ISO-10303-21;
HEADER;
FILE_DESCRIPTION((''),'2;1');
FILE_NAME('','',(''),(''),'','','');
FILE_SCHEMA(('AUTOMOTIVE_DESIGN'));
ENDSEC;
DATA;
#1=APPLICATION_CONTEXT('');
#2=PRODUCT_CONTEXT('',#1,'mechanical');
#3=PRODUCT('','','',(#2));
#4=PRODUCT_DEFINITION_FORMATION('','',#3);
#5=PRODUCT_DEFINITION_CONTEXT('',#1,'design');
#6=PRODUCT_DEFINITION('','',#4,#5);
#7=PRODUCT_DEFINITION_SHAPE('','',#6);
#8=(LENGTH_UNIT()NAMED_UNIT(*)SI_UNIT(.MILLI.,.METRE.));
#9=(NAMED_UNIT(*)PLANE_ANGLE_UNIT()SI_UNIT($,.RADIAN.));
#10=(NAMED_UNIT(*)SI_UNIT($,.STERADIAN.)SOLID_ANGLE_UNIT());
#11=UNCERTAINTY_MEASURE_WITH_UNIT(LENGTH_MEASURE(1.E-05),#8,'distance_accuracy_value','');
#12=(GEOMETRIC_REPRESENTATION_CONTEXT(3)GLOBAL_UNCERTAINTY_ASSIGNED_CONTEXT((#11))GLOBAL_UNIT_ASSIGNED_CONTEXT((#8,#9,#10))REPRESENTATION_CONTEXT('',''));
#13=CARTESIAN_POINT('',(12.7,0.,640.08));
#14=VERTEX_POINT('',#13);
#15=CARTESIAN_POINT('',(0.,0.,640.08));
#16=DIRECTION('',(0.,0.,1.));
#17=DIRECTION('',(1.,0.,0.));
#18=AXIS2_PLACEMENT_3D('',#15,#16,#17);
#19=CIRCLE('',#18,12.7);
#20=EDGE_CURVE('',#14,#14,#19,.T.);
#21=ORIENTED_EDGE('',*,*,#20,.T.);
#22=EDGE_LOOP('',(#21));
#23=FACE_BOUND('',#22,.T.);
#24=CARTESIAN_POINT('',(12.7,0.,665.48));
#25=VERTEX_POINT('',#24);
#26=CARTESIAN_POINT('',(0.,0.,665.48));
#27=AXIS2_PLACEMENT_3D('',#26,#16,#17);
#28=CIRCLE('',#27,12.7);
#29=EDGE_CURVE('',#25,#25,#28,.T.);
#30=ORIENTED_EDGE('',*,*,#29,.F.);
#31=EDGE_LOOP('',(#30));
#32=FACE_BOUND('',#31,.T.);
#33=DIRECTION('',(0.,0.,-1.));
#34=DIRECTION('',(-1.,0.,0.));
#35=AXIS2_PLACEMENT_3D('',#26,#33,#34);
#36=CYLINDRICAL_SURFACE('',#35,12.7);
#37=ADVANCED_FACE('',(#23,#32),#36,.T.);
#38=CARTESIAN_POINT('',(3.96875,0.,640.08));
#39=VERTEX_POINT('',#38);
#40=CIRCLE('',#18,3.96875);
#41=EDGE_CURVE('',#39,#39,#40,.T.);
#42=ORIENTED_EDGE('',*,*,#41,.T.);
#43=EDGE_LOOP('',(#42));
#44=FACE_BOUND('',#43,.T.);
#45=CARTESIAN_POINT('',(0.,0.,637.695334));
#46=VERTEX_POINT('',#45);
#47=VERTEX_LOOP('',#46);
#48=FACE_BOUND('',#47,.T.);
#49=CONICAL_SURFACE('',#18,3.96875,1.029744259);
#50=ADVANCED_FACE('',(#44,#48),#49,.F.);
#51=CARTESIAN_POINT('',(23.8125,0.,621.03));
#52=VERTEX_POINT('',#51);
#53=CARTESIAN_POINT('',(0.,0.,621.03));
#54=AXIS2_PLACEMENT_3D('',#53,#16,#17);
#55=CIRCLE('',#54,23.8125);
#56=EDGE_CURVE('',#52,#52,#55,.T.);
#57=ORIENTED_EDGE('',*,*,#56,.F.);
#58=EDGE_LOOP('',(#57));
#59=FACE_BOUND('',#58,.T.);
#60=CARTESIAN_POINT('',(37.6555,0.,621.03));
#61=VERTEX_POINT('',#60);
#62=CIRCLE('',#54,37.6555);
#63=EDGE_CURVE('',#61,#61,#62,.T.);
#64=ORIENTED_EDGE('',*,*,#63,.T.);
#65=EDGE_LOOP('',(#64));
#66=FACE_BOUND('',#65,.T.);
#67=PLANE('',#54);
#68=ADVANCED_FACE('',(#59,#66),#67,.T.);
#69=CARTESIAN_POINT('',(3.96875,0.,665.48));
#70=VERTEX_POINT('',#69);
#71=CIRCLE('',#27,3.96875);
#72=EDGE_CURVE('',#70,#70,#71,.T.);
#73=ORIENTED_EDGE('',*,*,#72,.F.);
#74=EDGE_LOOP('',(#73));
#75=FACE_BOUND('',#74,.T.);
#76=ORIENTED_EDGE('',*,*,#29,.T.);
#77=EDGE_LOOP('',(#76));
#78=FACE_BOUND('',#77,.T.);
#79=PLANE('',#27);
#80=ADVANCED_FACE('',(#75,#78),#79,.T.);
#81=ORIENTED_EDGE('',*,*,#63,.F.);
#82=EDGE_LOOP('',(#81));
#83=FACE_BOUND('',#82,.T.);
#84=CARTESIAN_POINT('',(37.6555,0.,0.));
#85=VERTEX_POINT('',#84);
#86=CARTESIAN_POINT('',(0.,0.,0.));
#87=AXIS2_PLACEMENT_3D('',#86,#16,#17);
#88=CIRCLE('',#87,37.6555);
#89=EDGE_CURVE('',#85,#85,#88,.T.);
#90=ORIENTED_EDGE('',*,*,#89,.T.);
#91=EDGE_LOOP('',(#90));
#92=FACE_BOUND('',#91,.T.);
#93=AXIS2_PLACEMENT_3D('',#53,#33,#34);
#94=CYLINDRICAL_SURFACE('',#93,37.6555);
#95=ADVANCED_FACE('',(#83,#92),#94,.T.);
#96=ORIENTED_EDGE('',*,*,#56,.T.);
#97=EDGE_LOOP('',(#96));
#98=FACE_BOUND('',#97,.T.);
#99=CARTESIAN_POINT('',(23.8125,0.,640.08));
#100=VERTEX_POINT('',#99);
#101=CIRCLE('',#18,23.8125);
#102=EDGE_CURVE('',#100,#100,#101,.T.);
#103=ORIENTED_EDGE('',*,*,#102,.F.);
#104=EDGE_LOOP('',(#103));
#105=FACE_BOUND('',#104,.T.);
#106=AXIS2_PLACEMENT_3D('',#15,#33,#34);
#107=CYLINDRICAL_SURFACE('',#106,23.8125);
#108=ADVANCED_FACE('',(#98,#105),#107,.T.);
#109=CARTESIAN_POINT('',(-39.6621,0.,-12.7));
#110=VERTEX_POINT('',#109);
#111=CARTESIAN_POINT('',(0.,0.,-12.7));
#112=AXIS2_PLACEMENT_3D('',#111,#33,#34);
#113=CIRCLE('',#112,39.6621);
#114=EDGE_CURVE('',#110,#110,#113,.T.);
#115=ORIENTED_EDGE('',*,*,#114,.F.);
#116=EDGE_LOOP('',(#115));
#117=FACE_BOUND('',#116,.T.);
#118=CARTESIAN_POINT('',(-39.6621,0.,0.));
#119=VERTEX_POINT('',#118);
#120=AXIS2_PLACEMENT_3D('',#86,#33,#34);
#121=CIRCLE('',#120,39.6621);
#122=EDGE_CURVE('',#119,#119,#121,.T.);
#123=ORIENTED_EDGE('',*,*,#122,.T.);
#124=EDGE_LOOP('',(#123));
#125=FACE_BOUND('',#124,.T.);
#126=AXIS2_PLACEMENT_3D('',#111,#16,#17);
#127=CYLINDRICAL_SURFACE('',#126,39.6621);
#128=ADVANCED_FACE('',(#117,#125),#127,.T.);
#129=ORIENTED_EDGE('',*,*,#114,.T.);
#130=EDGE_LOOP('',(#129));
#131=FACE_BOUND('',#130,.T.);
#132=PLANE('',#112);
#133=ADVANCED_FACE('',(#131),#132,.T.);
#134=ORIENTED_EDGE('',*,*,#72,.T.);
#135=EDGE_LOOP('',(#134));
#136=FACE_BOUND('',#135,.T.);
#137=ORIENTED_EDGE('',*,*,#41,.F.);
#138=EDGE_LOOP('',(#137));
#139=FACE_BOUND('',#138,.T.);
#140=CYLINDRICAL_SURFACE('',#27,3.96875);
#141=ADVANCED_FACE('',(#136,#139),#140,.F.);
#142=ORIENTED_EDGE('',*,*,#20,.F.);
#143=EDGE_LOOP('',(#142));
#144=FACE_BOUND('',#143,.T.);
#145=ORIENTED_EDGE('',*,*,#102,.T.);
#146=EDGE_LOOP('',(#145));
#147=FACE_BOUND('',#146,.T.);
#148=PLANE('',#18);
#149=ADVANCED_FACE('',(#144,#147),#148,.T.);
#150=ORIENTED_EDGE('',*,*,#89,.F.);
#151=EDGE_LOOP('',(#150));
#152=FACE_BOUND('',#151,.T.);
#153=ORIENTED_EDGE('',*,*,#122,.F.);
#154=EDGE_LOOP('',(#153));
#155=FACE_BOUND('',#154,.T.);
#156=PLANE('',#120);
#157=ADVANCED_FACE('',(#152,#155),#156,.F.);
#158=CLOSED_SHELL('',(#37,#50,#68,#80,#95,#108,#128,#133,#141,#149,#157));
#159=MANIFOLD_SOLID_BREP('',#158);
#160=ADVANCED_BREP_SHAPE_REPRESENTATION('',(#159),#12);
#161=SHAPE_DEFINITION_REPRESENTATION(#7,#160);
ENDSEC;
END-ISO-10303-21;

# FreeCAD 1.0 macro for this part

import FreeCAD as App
import Part
import Sketcher

V = App.Vector
Q = App.Units.Quantity

doc = App.newDocument("Part")
body = doc.addObject("PartDesign::Body", "Body")

sketch1 = body.newObject("Sketcher::SketchObject", "Sketch")
sketch1.AttachmentSupport = (doc.getObject("XY_Plane"), [""])
sketch1.MapMode = "FlatFace"
sketch1.addGeometry(Part.Circle(V(0, 0, 0), V(0, 0, 1), 37.6555), False)
sketch1.addConstraint(Sketcher.Constraint("Coincident", 0, 3, -1, 1))
sketch1.addConstraint(Sketcher.Constraint("Diameter", 0, Q("2.965 in")))
pad1 = body.newObject("PartDesign::Pad", "Pad")
pad1.Profile = sketch1
pad1.Length = Q("24.45 in")

sketch2 = body.newObject("Sketcher::SketchObject", "Sketch001")
sketch2.AttachmentSupport = (doc.getObject("XY_Plane"), [""])
sketch2.MapMode = "FlatFace"
sketch2.addGeometry(Part.Circle(V(0, 0, 0), V(0, 0, 1), 39.6621), False)
sketch2.addConstraint(Sketcher.Constraint("Coincident", 0, 3, -1, 1))
sketch2.addConstraint(Sketcher.Constraint("Diameter", 0, Q("3.123 in")))
pad2 = body.newObject("PartDesign::Pad", "Pad001")
pad2.Profile = sketch2
pad2.Length = Q("0.5 in")
pad2.Reversed = True

sketch3 = body.newObject("Sketcher::SketchObject", "Sketch002")
sketch3.AttachmentSupport = (doc.getObject("XY_Plane"), [""])
sketch3.MapMode = "FlatFace"
sketch3.AttachmentOffset = App.Placement(V(0, 0, 24.45 * 25.4), App.Rotation())
sketch3.addGeometry(Part.Circle(V(0, 0, 0), V(0, 0, 1), 23.8125), False)
sketch3.addConstraint(Sketcher.Constraint("Coincident", 0, 3, -1, 1))
sketch3.addConstraint(Sketcher.Constraint("Diameter", 0, Q("1.875 in")))
pad3 = body.newObject("PartDesign::Pad", "Pad002")
pad3.Profile = sketch3
pad3.Length = Q("0.75 in")

sketch4 = body.newObject("Sketcher::SketchObject", "Sketch003")
sketch4.AttachmentSupport = (doc.getObject("XY_Plane"), [""])
sketch4.MapMode = "FlatFace"
sketch4.AttachmentOffset = App.Placement(V(0, 0, 25.2 * 25.4), App.Rotation())
sketch4.addGeometry(Part.Circle(V(0, 0, 0), V(0, 0, 1), 12.7), False)
sketch4.addConstraint(Sketcher.Constraint("Coincident", 0, 3, -1, 1))
sketch4.addConstraint(Sketcher.Constraint("Diameter", 0, Q("1 in")))
pad4 = body.newObject("PartDesign::Pad", "Pad003")
pad4.Profile = sketch4
pad4.Length = Q("1 in")

sketch5 = body.newObject("Sketcher::SketchObject", "Sketch004")
sketch5.AttachmentSupport = (doc.getObject("XY_Plane"), [""])
sketch5.MapMode = "FlatFace"
sketch5.AttachmentOffset = App.Placement(V(0, 0, 26.2 * 25.4), App.Rotation())
sketch5.addGeometry(Part.Circle(V(0, 0, 0), V(0, 0, 1), 3.96875), False)
sketch5.addConstraint(Sketcher.Constraint("Coincident", 0, 3, -1, 1))
sketch5.addConstraint(Sketcher.Constraint("Diameter", 0, Q("0.3125 in")))
doc.recompute()
hole = body.newObject("PartDesign::Hole", "Hole")
hole.Profile = sketch5
hole.ThreadType = "None"
hole.Diameter = Q("0.3125 in")
hole.DepthType = "Dimension"
hole.Depth = Q("1 in")
hole.DrillPoint = "Angled"
hole.DrillPointAngle = 118

doc.recompute()
